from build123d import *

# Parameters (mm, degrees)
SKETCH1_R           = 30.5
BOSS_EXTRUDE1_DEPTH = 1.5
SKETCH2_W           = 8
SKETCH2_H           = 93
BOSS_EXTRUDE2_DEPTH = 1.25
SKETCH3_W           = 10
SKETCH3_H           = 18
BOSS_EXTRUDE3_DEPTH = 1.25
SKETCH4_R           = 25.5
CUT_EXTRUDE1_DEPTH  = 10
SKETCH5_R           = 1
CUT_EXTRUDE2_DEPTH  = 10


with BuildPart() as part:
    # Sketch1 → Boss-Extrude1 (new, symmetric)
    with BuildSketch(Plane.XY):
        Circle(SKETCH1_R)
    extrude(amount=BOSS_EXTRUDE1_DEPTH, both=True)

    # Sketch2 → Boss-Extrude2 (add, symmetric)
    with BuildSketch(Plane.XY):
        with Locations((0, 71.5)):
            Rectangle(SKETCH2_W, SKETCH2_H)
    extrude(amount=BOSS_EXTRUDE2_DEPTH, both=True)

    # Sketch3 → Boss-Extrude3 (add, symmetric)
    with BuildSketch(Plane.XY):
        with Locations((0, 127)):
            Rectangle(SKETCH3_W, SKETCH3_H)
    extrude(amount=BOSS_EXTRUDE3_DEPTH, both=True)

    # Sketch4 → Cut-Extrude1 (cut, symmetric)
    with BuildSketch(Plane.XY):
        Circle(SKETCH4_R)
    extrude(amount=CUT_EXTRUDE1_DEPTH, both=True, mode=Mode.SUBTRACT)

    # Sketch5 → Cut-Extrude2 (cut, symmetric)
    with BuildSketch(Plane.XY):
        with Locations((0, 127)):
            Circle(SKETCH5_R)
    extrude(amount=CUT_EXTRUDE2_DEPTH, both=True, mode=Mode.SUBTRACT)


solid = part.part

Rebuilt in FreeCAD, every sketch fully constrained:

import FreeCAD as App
import Part
import Sketcher

doc = App.newDocument("Part")
params = doc.addObject("Spreadsheet::Sheet", "Params")
for row, (alias, value) in enumerate([
    ("sketch1_diameter", "61 mm"),
    ("pad1_length", "3 mm"),
    ("sketch2_width", "8 mm"),
    ("sketch2_height", "93 mm"),
    ("pad2_length", "2.5 mm"),
    ("sketch3_width", "10 mm"),
    ("sketch3_height", "18 mm"),
    ("pad3_length", "2.5 mm"),
    ("sketch4_diameter", "51 mm"),
    ("pocket1_length", "20 mm"),
    ("sketch5_diameter", "2 mm"),
    ("pocket2_length", "20 mm"),
], start=1):
    params.set(f"A{row}", alias)
    params.set(f"B{row}", "=" + value)
    params.setAlias(f"B{row}", alias)

body = doc.addObject("PartDesign::Body", "Body")

# Sketch on XY plane
sketch1 = body.newObject("Sketcher::SketchObject", "Sketch")
sketch1.AttachmentSupport = (doc.getObject("XY_Plane"), [""])
sketch1.MapMode = "FlatFace"
sketch1.addGeometry(Part.Circle(App.Vector(0, 0, 0), App.Vector(0, 0, 1), 30.5), False)
sketch1.addConstraint(Sketcher.Constraint("Coincident", 0, 3, -1, 1))
sketch1.addConstraint(Sketcher.Constraint("Diameter", 0, 61.0))
sketch1.setExpression("Constraints[1]", "Params.sketch1_diameter")
pad1 = body.newObject("PartDesign::Pad", "Pad")
pad1.Profile = sketch1
pad1.setExpression("Length", "Params.pad1_length")
pad1.Midplane = True

# Sketch on XY plane
sketch2 = body.newObject("Sketcher::SketchObject", "Sketch001")
sketch2.AttachmentSupport = (doc.getObject("XY_Plane"), [""])
sketch2.MapMode = "FlatFace"
sketch2.addGeometry(Part.LineSegment(App.Vector(-4, 118, 0), App.Vector(-4, 25, 0)), False)
sketch2.addGeometry(Part.LineSegment(App.Vector(-4, 25, 0), App.Vector(4, 25, 0)), False)
sketch2.addGeometry(Part.LineSegment(App.Vector(4, 25, 0), App.Vector(4, 118, 0)), False)
sketch2.addGeometry(Part.LineSegment(App.Vector(4, 118, 0), App.Vector(-4, 118, 0)), False)
sketch2.addConstraint(Sketcher.Constraint("Coincident", 0, 2, 1, 1))
sketch2.addConstraint(Sketcher.Constraint("Coincident", 1, 2, 2, 1))
sketch2.addConstraint(Sketcher.Constraint("Coincident", 2, 2, 3, 1))
sketch2.addConstraint(Sketcher.Constraint("Coincident", 3, 2, 0, 1))
sketch2.addConstraint(Sketcher.Constraint("Vertical", 0))
sketch2.addConstraint(Sketcher.Constraint("Horizontal", 1))
sketch2.addConstraint(Sketcher.Constraint("Vertical", 2))
sketch2.addConstraint(Sketcher.Constraint("Horizontal", 3))
sketch2.addConstraint(Sketcher.Constraint("DistanceX", 1, 1, 1, 2, 8.0))
sketch2.addConstraint(Sketcher.Constraint("DistanceY", 0, 2, 0, 1, 93.0))
sketch2.addConstraint(Sketcher.Constraint("DistanceX", 0, 2, -1, 1, 4.0))
sketch2.addConstraint(Sketcher.Constraint("DistanceY", -1, 1, 0, 2, 25.0))
sketch2.setExpression("Constraints[8]", "Params.sketch2_width")
sketch2.setExpression("Constraints[9]", "Params.sketch2_height")
pad2 = body.newObject("PartDesign::Pad", "Pad001")
pad2.Profile = sketch2
pad2.setExpression("Length", "Params.pad2_length")
pad2.Midplane = True

# Sketch on XY plane
sketch3 = body.newObject("Sketcher::SketchObject", "Sketch002")
sketch3.AttachmentSupport = (doc.getObject("XY_Plane"), [""])
sketch3.MapMode = "FlatFace"
sketch3.addGeometry(Part.LineSegment(App.Vector(-5, 136, 0), App.Vector(-5, 118, 0)), False)
sketch3.addGeometry(Part.LineSegment(App.Vector(-5, 118, 0), App.Vector(5, 118, 0)), False)
sketch3.addGeometry(Part.LineSegment(App.Vector(5, 118, 0), App.Vector(5, 136, 0)), False)
sketch3.addGeometry(Part.LineSegment(App.Vector(5, 136, 0), App.Vector(-5, 136, 0)), False)
sketch3.addConstraint(Sketcher.Constraint("Coincident", 0, 2, 1, 1))
sketch3.addConstraint(Sketcher.Constraint("Coincident", 1, 2, 2, 1))
sketch3.addConstraint(Sketcher.Constraint("Coincident", 2, 2, 3, 1))
sketch3.addConstraint(Sketcher.Constraint("Coincident", 3, 2, 0, 1))
sketch3.addConstraint(Sketcher.Constraint("Vertical", 0))
sketch3.addConstraint(Sketcher.Constraint("Horizontal", 1))
sketch3.addConstraint(Sketcher.Constraint("Vertical", 2))
sketch3.addConstraint(Sketcher.Constraint("Horizontal", 3))
sketch3.addConstraint(Sketcher.Constraint("DistanceX", 1, 1, 1, 2, 10.0))
sketch3.addConstraint(Sketcher.Constraint("DistanceY", 0, 2, 0, 1, 18.0))
sketch3.addConstraint(Sketcher.Constraint("DistanceX", 0, 2, -1, 1, 5.0))
sketch3.addConstraint(Sketcher.Constraint("DistanceY", -1, 1, 0, 2, 118.0))
sketch3.setExpression("Constraints[8]", "Params.sketch3_width")
sketch3.setExpression("Constraints[9]", "Params.sketch3_height")
pad3 = body.newObject("PartDesign::Pad", "Pad002")
pad3.Profile = sketch3
pad3.setExpression("Length", "Params.pad3_length")
pad3.Midplane = True

# Sketch on XY plane
sketch4 = body.newObject("Sketcher::SketchObject", "Sketch003")
sketch4.AttachmentSupport = (doc.getObject("XY_Plane"), [""])
sketch4.MapMode = "FlatFace"
sketch4.addGeometry(Part.Circle(App.Vector(0, 0, 0), App.Vector(0, 0, 1), 25.5), False)
sketch4.addConstraint(Sketcher.Constraint("Coincident", 0, 3, -1, 1))
sketch4.addConstraint(Sketcher.Constraint("Diameter", 0, 51.0))
sketch4.setExpression("Constraints[1]", "Params.sketch4_diameter")
pocket1 = body.newObject("PartDesign::Pocket", "Pocket")
pocket1.Profile = sketch4
pocket1.setExpression("Length", "Params.pocket1_length")
pocket1.Midplane = True

# Sketch on XY plane
sketch5 = body.newObject("Sketcher::SketchObject", "Sketch004")
sketch5.AttachmentSupport = (doc.getObject("XY_Plane"), [""])
sketch5.MapMode = "FlatFace"
sketch5.addGeometry(Part.Circle(App.Vector(0, 127, 0), App.Vector(0, 0, 1), 1), False)
sketch5.addConstraint(Sketcher.Constraint("PointOnObject", 0, 3, -2))
sketch5.addConstraint(Sketcher.Constraint("Diameter", 0, 2.0))
sketch5.addConstraint(Sketcher.Constraint("DistanceY", -1, 1, 0, 3, 127.0))
sketch5.setExpression("Constraints[1]", "Params.sketch5_diameter")
pocket2 = body.newObject("PartDesign::Pocket", "Pocket001")
pocket2.Profile = sketch5
pocket2.setExpression("Length", "Params.pocket2_length")
pocket2.Midplane = True

doc.recompute()
